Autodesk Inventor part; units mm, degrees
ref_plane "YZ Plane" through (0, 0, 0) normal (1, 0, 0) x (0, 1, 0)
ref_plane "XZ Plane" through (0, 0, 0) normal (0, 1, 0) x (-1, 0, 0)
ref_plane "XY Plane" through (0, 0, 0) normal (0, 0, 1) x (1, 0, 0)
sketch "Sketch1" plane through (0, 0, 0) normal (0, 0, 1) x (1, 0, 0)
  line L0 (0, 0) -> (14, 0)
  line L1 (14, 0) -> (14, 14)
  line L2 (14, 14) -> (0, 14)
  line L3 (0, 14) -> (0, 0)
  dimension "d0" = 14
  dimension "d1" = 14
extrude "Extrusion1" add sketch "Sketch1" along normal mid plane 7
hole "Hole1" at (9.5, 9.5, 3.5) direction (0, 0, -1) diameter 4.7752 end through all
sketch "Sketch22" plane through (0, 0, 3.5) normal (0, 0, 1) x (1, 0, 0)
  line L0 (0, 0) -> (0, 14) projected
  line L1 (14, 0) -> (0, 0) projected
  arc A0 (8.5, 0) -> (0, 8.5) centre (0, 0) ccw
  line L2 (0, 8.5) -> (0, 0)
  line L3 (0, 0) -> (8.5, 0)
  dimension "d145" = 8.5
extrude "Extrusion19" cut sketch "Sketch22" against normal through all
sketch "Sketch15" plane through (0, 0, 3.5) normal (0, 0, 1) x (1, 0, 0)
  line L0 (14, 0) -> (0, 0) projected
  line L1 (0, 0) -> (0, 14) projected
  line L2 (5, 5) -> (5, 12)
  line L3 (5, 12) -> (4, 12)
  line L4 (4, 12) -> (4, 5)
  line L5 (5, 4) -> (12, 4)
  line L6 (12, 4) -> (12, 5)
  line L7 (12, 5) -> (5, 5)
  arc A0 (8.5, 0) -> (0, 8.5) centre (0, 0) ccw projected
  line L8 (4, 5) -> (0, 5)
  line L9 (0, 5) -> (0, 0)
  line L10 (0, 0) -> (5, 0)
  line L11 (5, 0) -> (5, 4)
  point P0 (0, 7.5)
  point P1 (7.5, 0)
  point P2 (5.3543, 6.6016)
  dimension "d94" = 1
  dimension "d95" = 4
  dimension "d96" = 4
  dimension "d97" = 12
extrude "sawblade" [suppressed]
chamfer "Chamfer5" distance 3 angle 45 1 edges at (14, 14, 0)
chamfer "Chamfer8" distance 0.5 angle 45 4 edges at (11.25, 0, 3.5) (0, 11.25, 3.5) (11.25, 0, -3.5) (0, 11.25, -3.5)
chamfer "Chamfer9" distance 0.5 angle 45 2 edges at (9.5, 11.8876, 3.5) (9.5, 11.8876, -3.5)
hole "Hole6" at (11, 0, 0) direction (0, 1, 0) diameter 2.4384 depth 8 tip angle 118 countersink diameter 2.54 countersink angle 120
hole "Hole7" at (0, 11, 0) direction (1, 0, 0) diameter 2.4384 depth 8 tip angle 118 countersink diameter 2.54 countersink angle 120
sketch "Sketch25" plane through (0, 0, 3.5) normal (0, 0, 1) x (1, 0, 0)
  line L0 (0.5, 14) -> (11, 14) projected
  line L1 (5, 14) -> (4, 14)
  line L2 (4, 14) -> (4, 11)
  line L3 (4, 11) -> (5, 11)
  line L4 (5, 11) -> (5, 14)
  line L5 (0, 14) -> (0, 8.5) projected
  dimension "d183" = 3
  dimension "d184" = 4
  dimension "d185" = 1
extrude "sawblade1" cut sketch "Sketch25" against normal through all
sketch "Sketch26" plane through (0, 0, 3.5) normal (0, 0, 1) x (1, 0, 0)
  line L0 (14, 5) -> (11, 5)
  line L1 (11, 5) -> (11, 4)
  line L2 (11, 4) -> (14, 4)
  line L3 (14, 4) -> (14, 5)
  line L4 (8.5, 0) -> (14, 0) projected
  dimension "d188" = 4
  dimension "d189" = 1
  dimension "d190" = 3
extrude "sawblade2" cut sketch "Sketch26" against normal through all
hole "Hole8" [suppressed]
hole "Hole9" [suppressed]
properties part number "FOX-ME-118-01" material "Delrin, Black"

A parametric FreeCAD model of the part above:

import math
import FreeCAD as App
import Part
import Sketcher
from FreeCAD import Vector


def edges_at(feature, points):
    """Names of the edges that pass closest to the given points."""
    edges = feature.Shape.Edges
    near = lambda p: min(range(len(edges)), key=lambda i: edges[i].distToShape(Part.Vertex(*p))[0])
    return sorted({f"Edge{near(p) + 1}" for p in points})


def add_polygon(sketch, points):
    """Adds a closed chain of lines whose ends are joined by coincident constraints."""
    first, n = sketch.GeometryCount, len(points)
    for a, b in zip(points, points[1:] + points[:1]):
        sketch.addGeometry(Part.LineSegment(App.Vector(*a, 0), App.Vector(*b, 0)), False)
    for i in range(n):
        sketch.addConstraint(Sketcher.Constraint("Coincident", first + i, 2, first + (i + 1) % n, 1))

doc = App.newDocument("Part")
body = doc.addObject("PartDesign::Body", "Body")

sketch1 = body.newObject("Sketcher::SketchObject", "Sketch")
sketch1.AttachmentSupport = (doc.getObject("XY_Plane"), [""])
sketch1.MapMode = "FlatFace"
add_polygon(sketch1, [(0, 14), (0, 0), (14, 0), (14, 14)])
sketch1.addConstraint([
    Sketcher.Constraint("Vertical", 0),
    Sketcher.Constraint("Horizontal", 1),
    Sketcher.Constraint("Vertical", 2),
    Sketcher.Constraint("Horizontal", 3),
    Sketcher.Constraint("Coincident", 0, 2, -1, 1),
    Sketcher.Constraint("Equal", 3, 0),
    Sketcher.Constraint("DistanceX", 1, 1, 1, 2, 14.0),
])
pad1 = body.newObject("PartDesign::Pad", "Pad")
pad1.Profile = sketch1
pad1.Length = 7
pad1.Midplane = True

sketch2 = body.newObject("Sketcher::SketchObject", "Sketch001")
sketch2.AttachmentSupport = (doc.getObject("XY_Plane"), [""])
sketch2.MapMode = "FlatFace"
sketch2.AttachmentOffset = App.Placement(Vector(0, 0, 3.5), App.Rotation())
sketch2.addGeometry(Part.Circle(Vector(9.5, 9.5, 0), Vector(0, 0, 1), 2.4), False)
sketch2.addConstraint([
    Sketcher.Constraint("Diameter", 0, 4.7752),
    Sketcher.Constraint("DistanceX", -1, 1, 0, 3, 9.5),
    Sketcher.Constraint("DistanceY", -1, 1, 0, 3, 9.5),
])
doc.recompute()
hole = body.newObject("PartDesign::Hole", "Hole")
hole.Profile = sketch2
hole.ThreadType = "None"
hole.Diameter = 4.7752
hole.DepthType = "ThroughAll"

sketch3 = body.newObject("Sketcher::SketchObject", "Sketch002")
sketch3.AttachmentSupport = (doc.getObject("XY_Plane"), [""])
sketch3.MapMode = "FlatFace"
sketch3.AttachmentOffset = App.Placement(Vector(0, 0, 3.5), App.Rotation())
sketch3.addGeometry([
    Part.LineSegment(Vector(0, 8, 0), Vector(0, 0, 0)),
    Part.LineSegment(Vector(0, 0, 0), Vector(8, 0, 0)),
    Part.ArcOfCircle(Part.Circle(Vector(0, 0, 0), Vector(0, 0, 1), 8), math.radians(0), math.radians(90)),
], False)
sketch3.addConstraint([
    Sketcher.Constraint("Coincident", 0, 2, 1, 1),
    Sketcher.Constraint("Coincident", 1, 2, 2, 1),
    Sketcher.Constraint("Coincident", 2, 2, 0, 1),
    Sketcher.Constraint("Vertical", 0),
    Sketcher.Constraint("Horizontal", 1),
    Sketcher.Constraint("Coincident", 2, 3, -1, 1),
    Sketcher.Constraint("Coincident", 0, 2, -1, 1),
    Sketcher.Constraint("Radius", 2, 8.5),
])
pocket1 = body.newObject("PartDesign::Pocket", "Pocket")
pocket1.Profile = sketch3
pocket1.Type = "ThroughAll"
doc.recompute()

chamfer = body.newObject("PartDesign::Chamfer", "Chamfer")
chamfer.Base = (pocket1, edges_at(pocket1, [(14, 14, 0)]))
chamfer.Size = 3
doc.recompute()

chamfer2 = body.newObject("PartDesign::Chamfer", "Chamfer001")
chamfer2.Base = (chamfer, edges_at(chamfer, [
    (11.25, 0, 3.5),
    (0, 11.25, 3.5),
    (11.25, 0, -3.5),
    (0, 11.25, -3.5),
]))
chamfer2.Size = 0.5
doc.recompute()

chamfer3 = body.newObject("PartDesign::Chamfer", "Chamfer002")
chamfer3.Base = (chamfer2, edges_at(chamfer2, [(9.5, 11.888, 3.5), (9.5, 11.888, -3.5)]))
chamfer3.Size = 0.5

sketch4 = body.newObject("Sketcher::SketchObject", "Sketch003")
sketch4.AttachmentSupport = (doc.getObject("XZ_Plane"), [""])
sketch4.MapMode = "FlatFace"
sketch4.addGeometry(Part.Circle(Vector(11, 0, 0), Vector(0, 0, 1), 1.2), False)
sketch4.addConstraint([
    Sketcher.Constraint("PointOnObject", 0, 3, -1),
    Sketcher.Constraint("DistanceX", -1, 1, 0, 3, 11.0),
    Sketcher.Constraint("Diameter", 0, 2.4384),
])
doc.recompute()
hole2 = body.newObject("PartDesign::Hole", "Hole001")
hole2.Profile = sketch4
hole2.ThreadType = "None"
hole2.Diameter = 2.4384
hole2.DepthType = "Dimension"
hole2.Depth = 8
hole2.DrillPoint = "Angled"
hole2.DrillPointAngle = 118
hole2.HoleCutType = "Countersink"
hole2.HoleCutDiameter = 2.54
hole2.HoleCutCountersinkAngle = 120

sketch5 = body.newObject("Sketcher::SketchObject", "Sketch004")
sketch5.AttachmentSupport = (doc.getObject("YZ_Plane"), [""])
sketch5.MapMode = "FlatFace"
sketch5.addGeometry(Part.Circle(Vector(11, 0, 0), Vector(0, 0, 1), 1.2), False)
sketch5.addConstraint([
    Sketcher.Constraint("PointOnObject", 0, 3, -1),
    Sketcher.Constraint("DistanceX", -1, 1, 0, 3, 11.0),
    Sketcher.Constraint("Diameter", 0, 2.4384),
])
doc.recompute()
hole3 = body.newObject("PartDesign::Hole", "Hole002")
hole3.Profile = sketch5
hole3.ThreadType = "None"
hole3.Diameter = 2.4384
hole3.DepthType = "Dimension"
hole3.Depth = 8
hole3.DrillPoint = "Angled"
hole3.DrillPointAngle = 118
hole3.HoleCutType = "Countersink"
hole3.HoleCutDiameter = 2.54
hole3.HoleCutCountersinkAngle = 120
hole3.Reversed = True

sketch6 = body.newObject("Sketcher::SketchObject", "Sketch005")
sketch6.AttachmentSupport = (doc.getObject("XY_Plane"), [""])
sketch6.MapMode = "FlatFace"
sketch6.AttachmentOffset = App.Placement(Vector(0, 0, 3.5), App.Rotation())
add_polygon(sketch6, [(5, 14), (4, 14), (4, 11), (5, 11)])
sketch6.addConstraint([
    Sketcher.Constraint("Horizontal", 0),
    Sketcher.Constraint("Vertical", 1),
    Sketcher.Constraint("Horizontal", 2),
    Sketcher.Constraint("Vertical", 3),
    Sketcher.Constraint("DistanceX", 0, 2, 0, 1, 1.0),
    Sketcher.Constraint("DistanceY", 1, 2, 1, 1, 3.0),
    Sketcher.Constraint("DistanceX", -1, 1, 0, 2, 4.0),
    Sketcher.Constraint("DistanceY", -1, 1, 0, 2, 14.0),
])
pocket2 = body.newObject("PartDesign::Pocket", "Pocket001")
pocket2.Profile = sketch6
pocket2.Type = "ThroughAll"

sketch7 = body.newObject("Sketcher::SketchObject", "Sketch006")
sketch7.AttachmentSupport = (doc.getObject("XY_Plane"), [""])
sketch7.MapMode = "FlatFace"
sketch7.AttachmentOffset = App.Placement(Vector(0, 0, 3.5), App.Rotation())
add_polygon(sketch7, [(14, 4), (14, 5), (11, 5), (11, 4)])
sketch7.addConstraint([
    Sketcher.Constraint("Vertical", 0),
    Sketcher.Constraint("Horizontal", 1),
    Sketcher.Constraint("Vertical", 2),
    Sketcher.Constraint("Horizontal", 3),
    Sketcher.Constraint("DistanceX", 1, 2, 1, 1, 3.0),
    Sketcher.Constraint("DistanceY", 0, 1, 0, 2, 1.0),
    Sketcher.Constraint("DistanceY", -1, 1, 2, 2, 4.0),
    Sketcher.Constraint("DistanceX", -1, 1, 0, 2, 14.0),
])
pocket3 = body.newObject("PartDesign::Pocket", "Pocket002")
pocket3.Profile = sketch7
pocket3.Type = "ThroughAll"

doc.recompute()
